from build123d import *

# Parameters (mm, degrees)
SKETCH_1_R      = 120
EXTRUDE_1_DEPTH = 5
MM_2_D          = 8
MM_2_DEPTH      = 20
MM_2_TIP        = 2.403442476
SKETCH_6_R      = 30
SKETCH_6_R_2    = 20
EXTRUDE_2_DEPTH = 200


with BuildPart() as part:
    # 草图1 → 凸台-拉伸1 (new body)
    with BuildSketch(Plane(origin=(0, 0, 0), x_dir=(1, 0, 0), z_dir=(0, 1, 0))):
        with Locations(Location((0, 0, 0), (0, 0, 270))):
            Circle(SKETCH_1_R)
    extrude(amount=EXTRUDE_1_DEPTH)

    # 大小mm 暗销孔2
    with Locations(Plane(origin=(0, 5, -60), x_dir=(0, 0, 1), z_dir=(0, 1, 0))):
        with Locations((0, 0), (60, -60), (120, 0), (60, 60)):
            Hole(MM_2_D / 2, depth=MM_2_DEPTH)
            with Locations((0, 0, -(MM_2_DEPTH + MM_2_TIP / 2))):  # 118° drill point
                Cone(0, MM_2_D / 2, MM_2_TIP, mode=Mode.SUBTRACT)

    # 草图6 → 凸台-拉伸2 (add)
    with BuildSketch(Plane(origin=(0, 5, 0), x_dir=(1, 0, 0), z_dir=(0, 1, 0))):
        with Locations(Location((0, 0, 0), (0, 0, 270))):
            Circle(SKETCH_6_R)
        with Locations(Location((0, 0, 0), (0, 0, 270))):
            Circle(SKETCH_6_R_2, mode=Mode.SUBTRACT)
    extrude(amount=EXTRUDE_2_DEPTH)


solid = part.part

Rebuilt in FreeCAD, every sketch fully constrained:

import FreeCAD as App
import Part
import Sketcher

V = App.Vector

doc = App.newDocument("Part")
body = doc.addObject("PartDesign::Body", "Body")

# Sketch on XZ plane
sketch1 = doc.addObject("Sketcher::SketchObject", "Sketch")
body.addObject(sketch1)
sketch1.AttachmentSupport = (doc.XZ_Plane, [""])
sketch1.MapMode = "FlatFace"
sketch1.addGeometry(Part.Circle(V(0, 0, 0), V(0, 0, 1), 120), False)
sketch1.addConstraint(Sketcher.Constraint("Coincident", 0, 3, -1, 1))
sketch1.addConstraint(Sketcher.Constraint("Diameter", 0, 240.0))
pad1 = doc.addObject("PartDesign::Pad", "Pad")
body.addObject(pad1)
pad1.Profile = sketch1
pad1.Length = 5
pad1.Reversed = True

# Sketch on XZ plane
sketch2 = doc.addObject("Sketcher::SketchObject", "Sketch001")
body.addObject(sketch2)
sketch2.AttachmentSupport = (doc.XZ_Plane, [""])
sketch2.MapMode = "FlatFace"
sketch2.AttachmentOffset = App.Placement(V(0, 0, -5), App.Rotation())
sketch2.addGeometry(Part.Circle(V(0, -60, 0), V(0, 0, 1), 4), False)
sketch2.addGeometry(Part.Circle(V(-60, 0, 0), V(0, 0, 1), 4), False)
sketch2.addGeometry(Part.Circle(V(0, 60, 0), V(0, 0, 1), 4), False)
sketch2.addGeometry(Part.Circle(V(60, 0, 0), V(0, 0, 1), 4), False)
sketch2.addConstraint(Sketcher.Constraint("Equal", 0, 1))
sketch2.addConstraint(Sketcher.Constraint("Equal", 1, 2))
sketch2.addConstraint(Sketcher.Constraint("Equal", 2, 3))
sketch2.addConstraint(Sketcher.Constraint("Symmetric", 0, 3, 2, 3, -1, 1))
sketch2.addConstraint(Sketcher.Constraint("Symmetric", 1, 3, 3, 3, -1, 1))
sketch2.addConstraint(Sketcher.Constraint("PointOnObject", 0, 3, -2))
sketch2.addConstraint(Sketcher.Constraint("PointOnObject", 1, 3, -1))
sketch2.addConstraint(Sketcher.Constraint("Diameter", 0, 8.0))
sketch2.addConstraint(Sketcher.Constraint("DistanceY", 0, 3, -1, 1, 60.0))
sketch2.addConstraint(Sketcher.Constraint("DistanceX", 1, 3, -1, 1, 60.0))
doc.recompute()
hole = doc.addObject("PartDesign::Hole", "Hole")
body.addObject(hole)
hole.Profile = sketch2
hole.ThreadType = "None"
hole.Diameter = 8
hole.DepthType = "Dimension"
hole.Depth = 20
hole.DrillPoint = "Angled"
hole.DrillPointAngle = 118
hole.Reversed = True

# Sketch on XZ plane
sketch3 = doc.addObject("Sketcher::SketchObject", "Sketch002")
body.addObject(sketch3)
sketch3.AttachmentSupport = (doc.XZ_Plane, [""])
sketch3.MapMode = "FlatFace"
sketch3.AttachmentOffset = App.Placement(V(0, 0, -5), App.Rotation())
sketch3.addGeometry(Part.Circle(V(0, 0, 0), V(0, 0, 1), 30), False)
sketch3.addGeometry(Part.Circle(V(0, 0, 0), V(0, 0, 1), 20), False)
sketch3.addConstraint(Sketcher.Constraint("Coincident", 0, 3, -1, 1))
sketch3.addConstraint(Sketcher.Constraint("Coincident", 1, 3, -1, 1))
sketch3.addConstraint(Sketcher.Constraint("Diameter", 0, 60.0))
sketch3.addConstraint(Sketcher.Constraint("Diameter", 1, 40.0))
pad2 = doc.addObject("PartDesign::Pad", "Pad001")
body.addObject(pad2)
pad2.Profile = sketch3
pad2.Length = 200
pad2.Reversed = True

doc.recompute()
